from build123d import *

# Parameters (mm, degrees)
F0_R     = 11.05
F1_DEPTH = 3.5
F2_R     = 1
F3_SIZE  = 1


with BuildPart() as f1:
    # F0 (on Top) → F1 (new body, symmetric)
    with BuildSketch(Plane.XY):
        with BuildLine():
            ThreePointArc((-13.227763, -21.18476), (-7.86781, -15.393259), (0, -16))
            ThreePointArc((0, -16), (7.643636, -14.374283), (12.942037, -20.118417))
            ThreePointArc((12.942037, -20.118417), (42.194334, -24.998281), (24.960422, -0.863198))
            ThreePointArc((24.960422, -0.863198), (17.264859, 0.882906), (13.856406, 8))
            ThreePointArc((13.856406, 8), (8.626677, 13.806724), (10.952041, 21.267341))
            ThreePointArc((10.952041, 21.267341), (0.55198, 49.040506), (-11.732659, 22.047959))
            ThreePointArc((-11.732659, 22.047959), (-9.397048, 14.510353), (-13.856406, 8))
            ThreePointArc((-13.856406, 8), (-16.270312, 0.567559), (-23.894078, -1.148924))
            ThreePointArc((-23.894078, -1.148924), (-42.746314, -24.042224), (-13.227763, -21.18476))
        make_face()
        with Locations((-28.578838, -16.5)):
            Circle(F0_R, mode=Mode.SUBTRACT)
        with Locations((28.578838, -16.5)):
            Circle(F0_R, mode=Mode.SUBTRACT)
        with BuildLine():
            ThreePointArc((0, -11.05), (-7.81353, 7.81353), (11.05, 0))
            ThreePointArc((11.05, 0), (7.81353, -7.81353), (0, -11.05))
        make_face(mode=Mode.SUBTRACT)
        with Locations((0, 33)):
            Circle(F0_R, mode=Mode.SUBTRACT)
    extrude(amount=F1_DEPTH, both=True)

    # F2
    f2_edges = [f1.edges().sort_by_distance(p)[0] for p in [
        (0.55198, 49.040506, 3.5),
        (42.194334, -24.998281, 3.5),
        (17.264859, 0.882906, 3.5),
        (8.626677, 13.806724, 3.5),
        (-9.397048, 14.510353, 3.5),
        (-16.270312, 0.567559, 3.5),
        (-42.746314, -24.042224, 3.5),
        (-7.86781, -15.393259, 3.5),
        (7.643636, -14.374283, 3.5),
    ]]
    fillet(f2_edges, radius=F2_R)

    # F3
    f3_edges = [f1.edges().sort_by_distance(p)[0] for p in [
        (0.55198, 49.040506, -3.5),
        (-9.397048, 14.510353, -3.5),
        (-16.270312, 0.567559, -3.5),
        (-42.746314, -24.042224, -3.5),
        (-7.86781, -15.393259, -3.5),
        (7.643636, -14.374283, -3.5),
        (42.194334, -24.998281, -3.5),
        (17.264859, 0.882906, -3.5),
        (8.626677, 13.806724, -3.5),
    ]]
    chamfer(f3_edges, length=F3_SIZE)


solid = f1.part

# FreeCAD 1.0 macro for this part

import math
import FreeCAD as App
import Part
import Sketcher
from FreeCAD import Vector
Q = App.Units.Quantity


def edges_at(feature, points):
    """Names of the edges that pass closest to the given points."""
    edges = feature.Shape.Edges
    near = lambda p: min(range(len(edges)), key=lambda i: edges[i].distToShape(Part.Vertex(*p))[0])
    return sorted({f"Edge{near(p) + 1}" for p in points})

doc = App.newDocument("Part")
body = doc.addObject("PartDesign::Body", "Body")

sketch1 = doc.addObject("Sketcher::SketchObject", "Sketch")
body.addObject(sketch1)
sketch1.AttachmentSupport = (doc.XY_Plane, [""])
sketch1.MapMode = "FlatFace"
sketch1.addGeometry(Part.ArcOfCircle(Part.Circle(Vector(-4.561095, -23.829609, 0), Vector(0, 0, 1), 9.061256), math.radians(59.777299), math.radians(163.029132)), False)
sketch1.addGeometry(Part.ArcOfCircle(Part.Circle(Vector(5.249261, -21.898554, 0), Vector(0, 0, 1), 7.896055), math.radians(13.029129), math.radians(131.666634)), False)
sketch1.addGeometry(Part.ArcOfCircle(Part.Circle(Vector(28.578838, -16.5, 0), Vector(0, 0, 1), 16.05), math.radians(-166.970861), math.radians(103.029136)), False)
sketch1.addGeometry(Part.ArcOfCircle(Part.Circle(Vector(22.917594, 7.964781, 0), Vector(0, 0, 1), 9.061256), math.radians(179.777303), math.radians(283.029136)), False)
sketch1.addGeometry(Part.ArcOfCircle(Part.Circle(Vector(16.340075, 15.495271, 0), Vector(0, 0, 1), 7.896056), math.radians(133.029145), math.radians(251.66662)), False)
sketch1.addGeometry(Part.ArcOfCircle(Part.Circle(Vector(0, 33, 0), Vector(0, 0, 1), 16.05), math.radians(-46.970866), math.radians(223.029136)), False)
sketch1.addGeometry(Part.ArcOfCircle(Part.Circle(Vector(-18.356498, 15.864828, 0), Vector(0, 0, 1), 9.061256), math.radians(-60.222701), math.radians(43.029137)), False)
sketch1.addGeometry(Part.ArcOfCircle(Part.Circle(Vector(-21.589335, 6.403284, 0), Vector(0, 0, 1), 7.896055), math.radians(-106.970867), math.radians(11.666629)), False)
sketch1.addGeometry(Part.ArcOfCircle(Part.Circle(Vector(-28.578839, -16.5, 0), Vector(0, 0, 1), 16.05), math.radians(73.029134), math.radians(343.029135)), False)
sketch1.addGeometry(Part.Circle(Vector(-28.578838, -16.5, 0), Vector(0, 0, 1), 11.05), False)
sketch1.addGeometry(Part.ArcOfCircle(Part.Circle(Vector(0, 0, 0), Vector(0, 0, 1), 11.05), math.radians(-90.000001), math.radians(0.000001)), False)
sketch1.addGeometry(Part.ArcOfCircle(Part.Circle(Vector(0, 0, 0), Vector(0, 0, 1), 11.05), math.radians(0), math.radians(270)), False)
sketch1.addGeometry(Part.Circle(Vector(28.578838, -16.5, 0), Vector(0, 0, 1), 11.05), False)
sketch1.addGeometry(Part.Circle(Vector(0, 33, 0), Vector(0, 0, 1), 11.05), False)
sketch1.addConstraint(Sketcher.Constraint("Coincident", 0, 1, 1, 2))
sketch1.addConstraint(Sketcher.Constraint("Tangent", 1, 1, 2, 1))
sketch1.addConstraint(Sketcher.Constraint("Tangent", 2, 2, 3, 2))
sketch1.addConstraint(Sketcher.Constraint("Coincident", 3, 1, 4, 2))
sketch1.addConstraint(Sketcher.Constraint("Tangent", 4, 1, 5, 1))
sketch1.addConstraint(Sketcher.Constraint("Tangent", 5, 2, 6, 2))
sketch1.addConstraint(Sketcher.Constraint("Coincident", 6, 1, 7, 2))
sketch1.addConstraint(Sketcher.Constraint("Tangent", 7, 1, 8, 1))
sketch1.addConstraint(Sketcher.Constraint("Tangent", 8, 2, 0, 2))
sketch1.addConstraint(Sketcher.Constraint("Tangent", 10, 1, 11, 2))
sketch1.addConstraint(Sketcher.Constraint("Coincident", 11, 1, 10, 2))
sketch1.addConstraint(Sketcher.Constraint("Coincident", 10, 3, -1, 1))
sketch1.addConstraint(Sketcher.Constraint("Coincident", 9, 3, 8, 3))
sketch1.addConstraint(Sketcher.Constraint("Coincident", 12, 3, 2, 3))
sketch1.addConstraint(Sketcher.Constraint("Coincident", 13, 3, 5, 3))
sketch1.addConstraint(Sketcher.Constraint("Equal", 0, 3))
sketch1.addConstraint(Sketcher.Constraint("Equal", 1, 4))
sketch1.addConstraint(Sketcher.Constraint("Equal", 2, 5))
sketch1.addConstraint(Sketcher.Constraint("Equal", 3, 6))
sketch1.addConstraint(Sketcher.Constraint("Equal", 4, 7))
sketch1.addConstraint(Sketcher.Constraint("Equal", 5, 8))
sketch1.addConstraint(Sketcher.Constraint("Equal", 9, 10))
sketch1.addConstraint(Sketcher.Constraint("Equal", 11, 12))
sketch1.addConstraint(Sketcher.Constraint("Equal", 12, 13))
sketch1.addConstraint(Sketcher.Constraint("Symmetric", 2, 3, 8, 3, -2))
sketch1.addConstraint(Sketcher.Constraint("Symmetric", 3, 1, 6, 1, -2))
sketch1.addConstraint(Sketcher.Constraint("PointOnObject", 5, 3, -2))
sketch1.addConstraint(Sketcher.Constraint("PointOnObject", 0, 1, -2))
sketch1.addConstraint(Sketcher.Constraint("PointOnObject", 10, 1, -2))
sketch1.addConstraint(Sketcher.Constraint("PointOnObject", 11, 1, -1))
sketch1.addConstraint(Sketcher.Constraint("Diameter", 9, Q("22.1 mm")))
sketch1.addConstraint(Sketcher.Constraint("Radius", 2, Q("16.05 mm")))
sketch1.addConstraint(Sketcher.Constraint("DistanceY", -1, 1, 5, 3, Q("33 mm")))
sketch1.addConstraint(Sketcher.Constraint("DistanceY", 0, 1, -1, 1, Q("16 mm")))
sketch1.addConstraint(Sketcher.Constraint("DistanceY", -1, 1, 3, 1, Q("8 mm")))
sketch1.addConstraint(Sketcher.Constraint("DistanceY", 2, 3, -1, 1, Q("16.5 mm")))
sketch1.addConstraint(Sketcher.Constraint("Radius", 0, Q("9.061256 mm")))
sketch1.addConstraint(Sketcher.Constraint("Radius", 1, Q("7.896055 mm")))
sketch1.addConstraint(Sketcher.Constraint("DistanceX", 6, 3, -1, 1, Q("18.356498 mm")))
sketch1.addConstraint(Sketcher.Constraint("DistanceY", 2, 2, -1, 1, Q("0.863198 mm")))
pad1 = doc.addObject("PartDesign::Pad", "Pad")
body.addObject(pad1)
pad1.Profile = sketch1
pad1.Length = 7
pad1.Midplane = True
doc.recompute()

fillet = doc.addObject("PartDesign::Fillet", "Fillet")
body.addObject(fillet)
fillet.Base = (pad1, edges_at(pad1, [
    (0.552, 49.041, 3.5),
    (42.194, -24.998, 3.5),
    (17.265, 0.883, 3.5),
    (8.627, 13.807, 3.5),
    (-9.397, 14.51, 3.5),
    (-16.27, 0.568, 3.5),
    (-42.746, -24.042, 3.5),
    (-7.868, -15.393, 3.5),
    (7.644, -14.374, 3.5),
]))
fillet.Radius = 1
doc.recompute()

chamfer = doc.addObject("PartDesign::Chamfer", "Chamfer")
body.addObject(chamfer)
chamfer.Base = (fillet, edges_at(fillet, [
    (0.552, 49.041, -3.5),
    (-9.397, 14.51, -3.5),
    (-16.27, 0.568, -3.5),
    (-42.746, -24.042, -3.5),
    (-7.868, -15.393, -3.5),
    (7.644, -14.374, -3.5),
    (42.194, -24.998, -3.5),
    (17.265, 0.883, -3.5),
    (8.627, 13.807, -3.5),
]))
chamfer.Size = 1

doc.recompute()
